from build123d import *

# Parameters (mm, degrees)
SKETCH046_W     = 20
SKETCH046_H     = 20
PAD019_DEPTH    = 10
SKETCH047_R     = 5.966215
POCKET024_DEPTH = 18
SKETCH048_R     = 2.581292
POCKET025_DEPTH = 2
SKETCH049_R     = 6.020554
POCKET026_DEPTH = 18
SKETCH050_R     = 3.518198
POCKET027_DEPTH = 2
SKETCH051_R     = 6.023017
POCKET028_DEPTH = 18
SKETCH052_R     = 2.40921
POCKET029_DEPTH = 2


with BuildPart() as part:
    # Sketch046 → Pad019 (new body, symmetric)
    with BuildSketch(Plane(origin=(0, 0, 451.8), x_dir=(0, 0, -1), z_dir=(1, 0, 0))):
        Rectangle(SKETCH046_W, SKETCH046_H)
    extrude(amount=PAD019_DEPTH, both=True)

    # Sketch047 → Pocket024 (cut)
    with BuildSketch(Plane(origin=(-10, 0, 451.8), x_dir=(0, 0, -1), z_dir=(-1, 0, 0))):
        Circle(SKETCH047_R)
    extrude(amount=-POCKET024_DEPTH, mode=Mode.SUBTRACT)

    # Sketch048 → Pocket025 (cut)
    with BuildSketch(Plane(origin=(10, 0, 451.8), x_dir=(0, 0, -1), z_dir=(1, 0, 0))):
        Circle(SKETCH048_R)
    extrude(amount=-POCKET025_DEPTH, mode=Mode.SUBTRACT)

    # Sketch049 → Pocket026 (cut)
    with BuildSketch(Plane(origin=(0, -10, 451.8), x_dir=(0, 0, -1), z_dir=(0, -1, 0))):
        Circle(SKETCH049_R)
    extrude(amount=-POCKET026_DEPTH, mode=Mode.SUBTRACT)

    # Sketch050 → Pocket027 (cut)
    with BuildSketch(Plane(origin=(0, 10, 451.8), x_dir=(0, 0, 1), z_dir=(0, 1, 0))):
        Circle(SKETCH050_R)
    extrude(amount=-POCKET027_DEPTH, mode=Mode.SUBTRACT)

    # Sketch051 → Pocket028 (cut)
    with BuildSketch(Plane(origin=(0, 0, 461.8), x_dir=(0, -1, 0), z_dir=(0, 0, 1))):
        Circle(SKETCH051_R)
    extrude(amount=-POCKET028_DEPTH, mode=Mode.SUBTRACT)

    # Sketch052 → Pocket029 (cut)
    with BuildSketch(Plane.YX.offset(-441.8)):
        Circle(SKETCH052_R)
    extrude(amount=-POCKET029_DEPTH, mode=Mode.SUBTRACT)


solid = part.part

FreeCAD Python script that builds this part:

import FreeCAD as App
import Part
import Sketcher
Q = App.Units.Quantity

doc = App.newDocument("Part")
body = doc.addObject("PartDesign::Body", "Body")

# Sketch on YZ plane
sketch1 = doc.addObject("Sketcher::SketchObject", "Sketch")
body.addObject(sketch1)
sketch1.AttachmentSupport = (doc.YZ_Plane, [""])
sketch1.MapMode = "FlatFace"
sketch1.addGeometry([
    Part.LineSegment(App.Vector(10, 462, 0), App.Vector(-10, 462, 0)),
    Part.LineSegment(App.Vector(-10, 462, 0), App.Vector(-10, 442, 0)),
    Part.LineSegment(App.Vector(-10, 442, 0), App.Vector(10, 442, 0)),
    Part.LineSegment(App.Vector(10, 442, 0), App.Vector(10, 462, 0)),
], False)
sketch1.addConstraint([
    Sketcher.Constraint("Coincident", 0, 2, 1, 1),
    Sketcher.Constraint("Coincident", 1, 2, 2, 1),
    Sketcher.Constraint("Coincident", 2, 2, 3, 1),
    Sketcher.Constraint("Coincident", 3, 2, 0, 1),
    Sketcher.Constraint("Horizontal", 0),
    Sketcher.Constraint("Vertical", 1),
    Sketcher.Constraint("Horizontal", 2),
    Sketcher.Constraint("Vertical", 3),
    Sketcher.Constraint("Equal", 2, 1),
    Sketcher.Constraint("DistanceX", 0, 2, 0, 1, Q("20 mm")),
    Sketcher.Constraint("DistanceX", 0, 2, -1, 1, Q("10 mm")),
    Sketcher.Constraint("DistanceY", -1, 1, 0, 2, Q("461.8 mm")),
])
pad1 = doc.addObject("PartDesign::Pad", "Pad")
body.addObject(pad1)
pad1.Profile = sketch1
pad1.Length = 20
pad1.Midplane = True

# Sketch on YZ plane
sketch2 = doc.addObject("Sketcher::SketchObject", "Sketch001")
body.addObject(sketch2)
sketch2.AttachmentSupport = (doc.YZ_Plane, [""])
sketch2.MapMode = "FlatFace"
sketch2.AttachmentOffset = App.Placement(App.Vector(0, 0, -10), App.Rotation())
sketch2.addGeometry(Part.Circle(App.Vector(0, 452, 0), App.Vector(0, 0, 1), 6), False)
sketch2.addConstraint([
    Sketcher.Constraint("PointOnObject", 0, 3, -2),
    Sketcher.Constraint("DistanceY", -1, 1, 0, 3, Q("451.8 mm")),
    Sketcher.Constraint("Diameter", 0, Q("11.93243 mm")),
])
pocket1 = doc.addObject("PartDesign::Pocket", "Pocket")
body.addObject(pocket1)
pocket1.Profile = sketch2
pocket1.Length = 18
pocket1.Reversed = True

# Sketch on YZ plane
sketch3 = doc.addObject("Sketcher::SketchObject", "Sketch002")
body.addObject(sketch3)
sketch3.AttachmentSupport = (doc.YZ_Plane, [""])
sketch3.MapMode = "FlatFace"
sketch3.AttachmentOffset = App.Placement(App.Vector(0, 0, 10), App.Rotation())
sketch3.addGeometry(Part.Circle(App.Vector(0, 451.8, 0), App.Vector(0, 0, 1), 2.6), False)
sketch3.addConstraint([
    Sketcher.Constraint("PointOnObject", 0, 3, -2),
    Sketcher.Constraint("DistanceY", -1, 1, 0, 3, Q("451.8 mm")),
    Sketcher.Constraint("Diameter", 0, Q("5.162584 mm")),
])
pocket2 = doc.addObject("PartDesign::Pocket", "Pocket001")
body.addObject(pocket2)
pocket2.Profile = sketch3
pocket2.Length = 2

# Sketch on XZ plane
sketch4 = doc.addObject("Sketcher::SketchObject", "Sketch003")
body.addObject(sketch4)
sketch4.AttachmentSupport = (doc.XZ_Plane, [""])
sketch4.MapMode = "FlatFace"
sketch4.AttachmentOffset = App.Placement(App.Vector(0, 0, 10), App.Rotation())
sketch4.addGeometry(Part.Circle(App.Vector(0, 452, 0), App.Vector(0, 0, 1), 6), False)
sketch4.addConstraint([
    Sketcher.Constraint("PointOnObject", 0, 3, -2),
    Sketcher.Constraint("DistanceY", -1, 1, 0, 3, Q("451.8 mm")),
    Sketcher.Constraint("Diameter", 0, Q("12.041108 mm")),
])
pocket3 = doc.addObject("PartDesign::Pocket", "Pocket002")
body.addObject(pocket3)
pocket3.Profile = sketch4
pocket3.Length = 18

# Sketch on XZ plane
sketch5 = doc.addObject("Sketcher::SketchObject", "Sketch004")
body.addObject(sketch5)
sketch5.AttachmentSupport = (doc.XZ_Plane, [""])
sketch5.MapMode = "FlatFace"
sketch5.AttachmentOffset = App.Placement(App.Vector(0, 0, -10), App.Rotation())
sketch5.addGeometry(Part.Circle(App.Vector(0, 451.8, 0), App.Vector(0, 0, 1), 3.5), False)
sketch5.addConstraint([
    Sketcher.Constraint("PointOnObject", 0, 3, -2),
    Sketcher.Constraint("DistanceY", -1, 1, 0, 3, Q("451.8 mm")),
    Sketcher.Constraint("Diameter", 0, Q("7.036396 mm")),
])
pocket4 = doc.addObject("PartDesign::Pocket", "Pocket003")
body.addObject(pocket4)
pocket4.Profile = sketch5
pocket4.Length = 2
pocket4.Reversed = True

# Sketch on XY plane
sketch6 = doc.addObject("Sketcher::SketchObject", "Sketch005")
body.addObject(sketch6)
sketch6.AttachmentSupport = (doc.XY_Plane, [""])
sketch6.MapMode = "FlatFace"
sketch6.AttachmentOffset = App.Placement(App.Vector(0, 0, 461.8), App.Rotation())
sketch6.addGeometry(Part.Circle(App.Vector(0, 0, 0), App.Vector(0, 0, 1), 6), False)
sketch6.addConstraint([
    Sketcher.Constraint("Coincident", 0, 3, -1, 1),
    Sketcher.Constraint("Diameter", 0, Q("12.046034 mm")),
])
pocket5 = doc.addObject("PartDesign::Pocket", "Pocket004")
body.addObject(pocket5)
pocket5.Profile = sketch6
pocket5.Length = 18

# Sketch on XY plane
sketch7 = doc.addObject("Sketcher::SketchObject", "Sketch006")
body.addObject(sketch7)
sketch7.AttachmentSupport = (doc.XY_Plane, [""])
sketch7.MapMode = "FlatFace"
sketch7.AttachmentOffset = App.Placement(App.Vector(0, 0, 441.8), App.Rotation())
sketch7.addGeometry(Part.Circle(App.Vector(0, 0, 0), App.Vector(0, 0, 1), 2.4), False)
sketch7.addConstraint([
    Sketcher.Constraint("Coincident", 0, 3, -1, 1),
    Sketcher.Constraint("Diameter", 0, Q("4.81842 mm")),
])
pocket6 = doc.addObject("PartDesign::Pocket", "Pocket005")
body.addObject(pocket6)
pocket6.Profile = sketch7
pocket6.Length = 2
pocket6.Reversed = True

doc.recompute()
